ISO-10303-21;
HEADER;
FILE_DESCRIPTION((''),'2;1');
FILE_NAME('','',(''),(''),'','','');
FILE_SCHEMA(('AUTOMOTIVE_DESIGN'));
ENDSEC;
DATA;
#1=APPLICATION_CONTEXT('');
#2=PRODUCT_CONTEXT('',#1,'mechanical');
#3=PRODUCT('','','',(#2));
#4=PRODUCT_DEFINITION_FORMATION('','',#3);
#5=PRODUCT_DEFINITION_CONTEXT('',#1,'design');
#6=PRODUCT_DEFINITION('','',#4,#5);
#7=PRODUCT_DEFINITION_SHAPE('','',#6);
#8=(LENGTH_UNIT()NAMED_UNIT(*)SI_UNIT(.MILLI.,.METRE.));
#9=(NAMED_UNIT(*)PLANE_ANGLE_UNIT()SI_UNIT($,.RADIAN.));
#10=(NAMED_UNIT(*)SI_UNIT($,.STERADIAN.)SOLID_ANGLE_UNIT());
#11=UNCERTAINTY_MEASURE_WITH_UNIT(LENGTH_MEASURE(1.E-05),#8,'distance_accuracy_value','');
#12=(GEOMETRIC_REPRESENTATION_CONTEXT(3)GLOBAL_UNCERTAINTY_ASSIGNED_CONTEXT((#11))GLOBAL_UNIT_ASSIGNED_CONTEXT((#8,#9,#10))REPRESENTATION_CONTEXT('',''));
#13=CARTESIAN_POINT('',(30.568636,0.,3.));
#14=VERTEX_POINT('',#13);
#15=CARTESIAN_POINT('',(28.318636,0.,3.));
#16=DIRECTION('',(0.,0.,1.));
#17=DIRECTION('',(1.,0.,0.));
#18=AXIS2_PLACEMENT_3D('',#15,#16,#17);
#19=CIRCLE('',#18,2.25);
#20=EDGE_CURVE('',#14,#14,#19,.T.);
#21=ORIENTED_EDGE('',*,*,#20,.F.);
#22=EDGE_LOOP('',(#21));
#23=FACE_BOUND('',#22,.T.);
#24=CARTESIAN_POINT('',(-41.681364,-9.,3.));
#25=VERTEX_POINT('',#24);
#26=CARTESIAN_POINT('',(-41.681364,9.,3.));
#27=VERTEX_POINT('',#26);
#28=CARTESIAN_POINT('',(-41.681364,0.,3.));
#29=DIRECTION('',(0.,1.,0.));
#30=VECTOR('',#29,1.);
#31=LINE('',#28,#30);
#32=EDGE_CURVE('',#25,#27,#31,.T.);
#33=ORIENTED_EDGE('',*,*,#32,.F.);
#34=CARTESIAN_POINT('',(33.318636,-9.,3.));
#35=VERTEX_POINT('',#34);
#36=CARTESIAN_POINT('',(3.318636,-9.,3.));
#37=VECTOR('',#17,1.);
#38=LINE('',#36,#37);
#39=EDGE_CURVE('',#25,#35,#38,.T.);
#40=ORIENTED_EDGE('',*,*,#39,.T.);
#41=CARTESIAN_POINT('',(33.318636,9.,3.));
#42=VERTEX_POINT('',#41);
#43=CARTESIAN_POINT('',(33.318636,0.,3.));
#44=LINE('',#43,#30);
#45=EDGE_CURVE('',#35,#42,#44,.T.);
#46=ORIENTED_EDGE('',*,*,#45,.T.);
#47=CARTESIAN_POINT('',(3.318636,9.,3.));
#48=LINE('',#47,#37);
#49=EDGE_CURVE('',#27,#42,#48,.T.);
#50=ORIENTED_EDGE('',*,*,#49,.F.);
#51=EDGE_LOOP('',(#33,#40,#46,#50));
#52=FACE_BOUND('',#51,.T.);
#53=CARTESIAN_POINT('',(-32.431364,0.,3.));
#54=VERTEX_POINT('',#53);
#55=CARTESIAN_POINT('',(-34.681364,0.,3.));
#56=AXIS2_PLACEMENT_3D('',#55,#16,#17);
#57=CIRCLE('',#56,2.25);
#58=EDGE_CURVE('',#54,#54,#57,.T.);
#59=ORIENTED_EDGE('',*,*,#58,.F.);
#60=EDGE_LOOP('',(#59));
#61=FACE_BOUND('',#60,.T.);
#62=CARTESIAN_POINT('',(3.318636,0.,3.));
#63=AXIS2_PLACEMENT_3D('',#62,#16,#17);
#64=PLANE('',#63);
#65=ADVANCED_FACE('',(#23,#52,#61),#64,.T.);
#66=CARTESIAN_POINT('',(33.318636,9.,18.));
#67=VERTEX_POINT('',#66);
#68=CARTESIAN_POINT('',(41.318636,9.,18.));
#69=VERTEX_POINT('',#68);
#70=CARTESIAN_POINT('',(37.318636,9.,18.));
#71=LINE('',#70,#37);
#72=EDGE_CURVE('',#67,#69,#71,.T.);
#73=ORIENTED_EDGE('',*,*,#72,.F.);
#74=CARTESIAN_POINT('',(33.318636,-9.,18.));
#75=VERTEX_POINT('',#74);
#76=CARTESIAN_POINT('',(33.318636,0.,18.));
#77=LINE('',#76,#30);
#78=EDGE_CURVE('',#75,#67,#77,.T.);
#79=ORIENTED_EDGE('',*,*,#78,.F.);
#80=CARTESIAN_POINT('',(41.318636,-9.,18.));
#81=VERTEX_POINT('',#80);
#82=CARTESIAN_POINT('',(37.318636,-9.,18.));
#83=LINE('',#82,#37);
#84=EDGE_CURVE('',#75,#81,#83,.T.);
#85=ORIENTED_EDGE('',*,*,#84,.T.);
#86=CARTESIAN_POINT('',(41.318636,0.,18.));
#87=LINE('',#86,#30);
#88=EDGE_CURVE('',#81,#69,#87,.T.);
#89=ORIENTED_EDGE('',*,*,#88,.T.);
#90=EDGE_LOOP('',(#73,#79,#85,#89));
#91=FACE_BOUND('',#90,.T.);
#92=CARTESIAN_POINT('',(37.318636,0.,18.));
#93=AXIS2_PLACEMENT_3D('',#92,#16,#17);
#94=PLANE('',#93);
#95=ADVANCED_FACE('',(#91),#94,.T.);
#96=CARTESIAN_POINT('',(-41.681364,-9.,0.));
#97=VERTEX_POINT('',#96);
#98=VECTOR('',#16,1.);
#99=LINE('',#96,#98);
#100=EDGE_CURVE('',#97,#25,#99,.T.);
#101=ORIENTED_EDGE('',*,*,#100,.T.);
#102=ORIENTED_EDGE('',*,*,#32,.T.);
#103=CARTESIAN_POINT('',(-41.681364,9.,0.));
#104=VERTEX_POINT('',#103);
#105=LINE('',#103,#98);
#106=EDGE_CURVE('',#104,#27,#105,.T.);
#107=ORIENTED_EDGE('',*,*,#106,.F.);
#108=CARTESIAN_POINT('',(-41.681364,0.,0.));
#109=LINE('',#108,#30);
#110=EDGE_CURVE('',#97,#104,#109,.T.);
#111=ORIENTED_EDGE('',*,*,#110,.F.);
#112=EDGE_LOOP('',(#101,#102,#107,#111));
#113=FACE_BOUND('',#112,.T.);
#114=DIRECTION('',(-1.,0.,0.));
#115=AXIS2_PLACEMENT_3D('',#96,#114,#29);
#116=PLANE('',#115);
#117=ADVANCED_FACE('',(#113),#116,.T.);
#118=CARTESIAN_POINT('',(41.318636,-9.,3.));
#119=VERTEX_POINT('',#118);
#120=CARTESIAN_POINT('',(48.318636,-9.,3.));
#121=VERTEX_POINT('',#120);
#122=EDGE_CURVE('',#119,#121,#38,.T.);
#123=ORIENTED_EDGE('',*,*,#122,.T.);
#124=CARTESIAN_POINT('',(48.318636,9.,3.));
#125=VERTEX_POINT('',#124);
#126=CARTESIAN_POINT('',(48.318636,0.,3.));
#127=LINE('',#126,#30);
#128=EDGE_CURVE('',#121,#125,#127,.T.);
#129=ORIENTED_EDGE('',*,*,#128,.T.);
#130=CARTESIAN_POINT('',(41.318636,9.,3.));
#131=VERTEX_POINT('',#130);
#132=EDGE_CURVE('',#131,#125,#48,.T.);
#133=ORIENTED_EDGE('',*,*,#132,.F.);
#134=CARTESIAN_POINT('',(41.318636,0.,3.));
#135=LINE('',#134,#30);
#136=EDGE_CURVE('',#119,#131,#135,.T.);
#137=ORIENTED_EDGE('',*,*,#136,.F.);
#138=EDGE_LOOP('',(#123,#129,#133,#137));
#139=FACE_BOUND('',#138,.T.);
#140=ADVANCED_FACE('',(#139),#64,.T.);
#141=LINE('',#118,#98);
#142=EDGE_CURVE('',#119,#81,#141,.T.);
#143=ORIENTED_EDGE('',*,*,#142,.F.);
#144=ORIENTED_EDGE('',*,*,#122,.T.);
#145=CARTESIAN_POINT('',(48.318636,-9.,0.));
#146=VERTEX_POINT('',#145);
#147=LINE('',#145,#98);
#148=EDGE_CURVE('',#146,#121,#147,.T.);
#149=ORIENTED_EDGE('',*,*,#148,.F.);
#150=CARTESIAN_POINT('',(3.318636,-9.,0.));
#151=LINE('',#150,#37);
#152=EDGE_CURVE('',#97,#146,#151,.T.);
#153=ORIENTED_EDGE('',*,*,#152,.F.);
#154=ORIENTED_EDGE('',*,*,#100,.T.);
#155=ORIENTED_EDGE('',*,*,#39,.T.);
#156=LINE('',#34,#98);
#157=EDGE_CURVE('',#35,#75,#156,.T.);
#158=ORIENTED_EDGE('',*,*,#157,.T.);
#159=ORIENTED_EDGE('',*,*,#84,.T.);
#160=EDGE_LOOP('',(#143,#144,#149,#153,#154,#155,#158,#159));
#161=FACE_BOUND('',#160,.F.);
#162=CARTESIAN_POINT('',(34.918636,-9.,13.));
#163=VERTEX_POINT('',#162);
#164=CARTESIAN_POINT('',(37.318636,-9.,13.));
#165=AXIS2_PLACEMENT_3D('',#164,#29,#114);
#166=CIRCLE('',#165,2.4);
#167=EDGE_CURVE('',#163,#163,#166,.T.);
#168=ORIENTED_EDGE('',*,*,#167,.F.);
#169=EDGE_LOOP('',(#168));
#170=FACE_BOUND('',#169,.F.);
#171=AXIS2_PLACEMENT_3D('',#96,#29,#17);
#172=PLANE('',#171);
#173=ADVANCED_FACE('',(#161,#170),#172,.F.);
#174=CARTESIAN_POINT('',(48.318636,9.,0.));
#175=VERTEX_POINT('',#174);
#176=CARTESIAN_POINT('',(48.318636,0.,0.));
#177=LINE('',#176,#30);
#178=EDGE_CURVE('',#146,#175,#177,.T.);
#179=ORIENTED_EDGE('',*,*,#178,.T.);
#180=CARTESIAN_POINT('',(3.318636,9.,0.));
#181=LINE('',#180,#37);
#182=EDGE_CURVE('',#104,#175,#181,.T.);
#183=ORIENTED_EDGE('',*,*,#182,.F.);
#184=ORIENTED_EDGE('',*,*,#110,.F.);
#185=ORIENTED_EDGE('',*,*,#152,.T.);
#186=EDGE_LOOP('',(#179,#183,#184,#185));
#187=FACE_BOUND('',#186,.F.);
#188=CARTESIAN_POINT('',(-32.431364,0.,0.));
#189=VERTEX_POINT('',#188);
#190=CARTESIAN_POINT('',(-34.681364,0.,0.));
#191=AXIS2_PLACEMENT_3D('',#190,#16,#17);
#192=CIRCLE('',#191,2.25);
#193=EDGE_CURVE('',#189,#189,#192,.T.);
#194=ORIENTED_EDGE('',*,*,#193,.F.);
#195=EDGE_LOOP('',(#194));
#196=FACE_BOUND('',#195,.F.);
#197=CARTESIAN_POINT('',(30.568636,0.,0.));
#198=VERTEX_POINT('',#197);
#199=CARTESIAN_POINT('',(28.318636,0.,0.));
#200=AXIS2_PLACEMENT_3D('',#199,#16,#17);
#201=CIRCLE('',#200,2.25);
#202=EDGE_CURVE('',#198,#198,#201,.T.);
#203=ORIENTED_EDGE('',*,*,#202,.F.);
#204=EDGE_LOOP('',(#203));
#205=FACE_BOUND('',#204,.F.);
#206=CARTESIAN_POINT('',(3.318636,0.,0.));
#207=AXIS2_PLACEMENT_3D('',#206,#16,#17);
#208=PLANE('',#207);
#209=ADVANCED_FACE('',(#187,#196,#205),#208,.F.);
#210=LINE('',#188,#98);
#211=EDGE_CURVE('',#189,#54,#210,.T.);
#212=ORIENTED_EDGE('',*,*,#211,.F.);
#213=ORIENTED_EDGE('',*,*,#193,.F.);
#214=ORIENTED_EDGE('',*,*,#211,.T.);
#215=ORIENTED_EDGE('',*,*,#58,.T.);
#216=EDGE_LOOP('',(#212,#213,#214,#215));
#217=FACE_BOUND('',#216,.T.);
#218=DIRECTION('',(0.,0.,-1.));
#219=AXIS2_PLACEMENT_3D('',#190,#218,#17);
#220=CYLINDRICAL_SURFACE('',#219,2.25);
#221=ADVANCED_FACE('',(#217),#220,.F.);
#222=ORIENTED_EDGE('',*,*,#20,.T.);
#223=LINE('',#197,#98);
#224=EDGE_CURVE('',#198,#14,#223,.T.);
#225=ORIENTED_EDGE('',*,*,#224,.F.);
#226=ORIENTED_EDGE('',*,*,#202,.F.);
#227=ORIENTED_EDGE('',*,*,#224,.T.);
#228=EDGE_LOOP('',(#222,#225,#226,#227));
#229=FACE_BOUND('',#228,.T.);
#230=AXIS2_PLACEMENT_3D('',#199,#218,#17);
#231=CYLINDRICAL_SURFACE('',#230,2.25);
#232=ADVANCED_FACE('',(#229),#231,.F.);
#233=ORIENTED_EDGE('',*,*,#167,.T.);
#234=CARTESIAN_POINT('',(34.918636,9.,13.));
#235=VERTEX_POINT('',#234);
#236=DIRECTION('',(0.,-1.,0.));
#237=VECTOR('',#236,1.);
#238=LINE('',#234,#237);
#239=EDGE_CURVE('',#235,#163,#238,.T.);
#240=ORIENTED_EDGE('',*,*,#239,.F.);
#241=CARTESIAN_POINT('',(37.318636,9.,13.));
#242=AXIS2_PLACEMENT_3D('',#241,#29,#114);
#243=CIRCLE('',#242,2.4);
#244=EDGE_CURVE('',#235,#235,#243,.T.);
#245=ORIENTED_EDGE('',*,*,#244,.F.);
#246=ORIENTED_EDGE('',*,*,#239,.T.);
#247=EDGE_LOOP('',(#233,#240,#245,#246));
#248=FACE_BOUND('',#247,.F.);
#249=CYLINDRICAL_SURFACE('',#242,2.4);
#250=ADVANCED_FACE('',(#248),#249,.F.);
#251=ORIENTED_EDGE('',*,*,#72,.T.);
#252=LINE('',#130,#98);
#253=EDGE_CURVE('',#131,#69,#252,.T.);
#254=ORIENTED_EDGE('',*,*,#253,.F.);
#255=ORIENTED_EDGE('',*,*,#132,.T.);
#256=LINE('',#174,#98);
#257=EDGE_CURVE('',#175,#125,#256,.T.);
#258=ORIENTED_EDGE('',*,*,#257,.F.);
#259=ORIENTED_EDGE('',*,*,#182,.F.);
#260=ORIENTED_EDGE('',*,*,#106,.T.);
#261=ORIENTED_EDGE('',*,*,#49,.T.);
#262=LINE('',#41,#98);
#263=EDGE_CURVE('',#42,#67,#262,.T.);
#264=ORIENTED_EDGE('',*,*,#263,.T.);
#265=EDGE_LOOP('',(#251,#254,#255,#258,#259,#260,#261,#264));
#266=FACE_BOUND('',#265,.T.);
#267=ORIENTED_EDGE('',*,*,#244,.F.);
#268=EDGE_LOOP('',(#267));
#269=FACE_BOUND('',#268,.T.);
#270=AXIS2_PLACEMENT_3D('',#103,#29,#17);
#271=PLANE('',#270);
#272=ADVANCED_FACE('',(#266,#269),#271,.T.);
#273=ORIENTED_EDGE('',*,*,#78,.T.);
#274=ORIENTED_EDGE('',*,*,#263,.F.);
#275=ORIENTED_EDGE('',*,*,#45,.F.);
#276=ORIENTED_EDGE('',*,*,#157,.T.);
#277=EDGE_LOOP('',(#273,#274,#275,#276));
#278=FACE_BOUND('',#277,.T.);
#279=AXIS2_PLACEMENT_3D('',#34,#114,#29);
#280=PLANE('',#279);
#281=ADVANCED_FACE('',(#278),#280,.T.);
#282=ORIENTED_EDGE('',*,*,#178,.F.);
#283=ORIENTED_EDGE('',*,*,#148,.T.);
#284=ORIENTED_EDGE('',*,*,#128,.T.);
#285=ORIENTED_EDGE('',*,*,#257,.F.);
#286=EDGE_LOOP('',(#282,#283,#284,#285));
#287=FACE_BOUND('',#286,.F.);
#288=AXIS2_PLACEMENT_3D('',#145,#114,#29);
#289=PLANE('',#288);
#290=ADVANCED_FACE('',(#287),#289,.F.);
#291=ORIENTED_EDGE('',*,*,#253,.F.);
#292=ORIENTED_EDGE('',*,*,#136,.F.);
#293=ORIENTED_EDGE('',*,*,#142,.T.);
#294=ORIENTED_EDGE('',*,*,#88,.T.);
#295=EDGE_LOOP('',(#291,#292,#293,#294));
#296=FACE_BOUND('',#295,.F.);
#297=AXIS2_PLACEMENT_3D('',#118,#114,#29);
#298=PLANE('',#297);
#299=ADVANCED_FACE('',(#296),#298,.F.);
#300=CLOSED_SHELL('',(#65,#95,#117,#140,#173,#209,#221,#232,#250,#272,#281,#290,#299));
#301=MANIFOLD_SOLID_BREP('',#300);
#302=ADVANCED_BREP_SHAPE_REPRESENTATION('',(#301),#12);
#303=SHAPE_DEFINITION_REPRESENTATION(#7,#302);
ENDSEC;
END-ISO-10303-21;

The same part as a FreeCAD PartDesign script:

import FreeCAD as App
import Part
import Sketcher

V = App.Vector

doc = App.newDocument("Part")
body = doc.addObject("PartDesign::Body", "Body")

# Sketch on XY plane
sketch1 = body.newObject("Sketcher::SketchObject", "Sketch")
sketch1.AttachmentSupport = (doc.getObject("XY_Plane"), [""])
sketch1.MapMode = "FlatFace"
sketch1.addGeometry([
    Part.LineSegment(V(-41.7, 9, 0), V(-41.7, -9, 0)),  # 0
    Part.LineSegment(V(-41.7, -9, 0), V(48.3, -9, 0)),  # 1
    Part.LineSegment(V(48.3, -9, 0), V(48.3, 9, 0)),  # 2
    Part.LineSegment(V(48.3, 9, 0), V(-41.7, 9, 0)),  # 3
    Part.Circle(V(-34.7, 0, 0), V(0, 0, 1), 2.2),  # 4
    Part.Circle(V(28.3, 0, 0), V(0, 0, 1), 2.2),  # 5
], False)
sketch1.addConstraint([
    Sketcher.Constraint("Coincident", 0, 2, 1, 1),
    Sketcher.Constraint("Coincident", 1, 2, 2, 1),
    Sketcher.Constraint("Coincident", 2, 2, 3, 1),
    Sketcher.Constraint("Coincident", 3, 2, 0, 1),
    Sketcher.Constraint("Vertical", 0),
    Sketcher.Constraint("Horizontal", 1),
    Sketcher.Constraint("Vertical", 2),
    Sketcher.Constraint("Horizontal", 3),
    Sketcher.Constraint("Equal", 4, 5),
    Sketcher.Constraint("PointOnObject", 4, 3, -1),
    Sketcher.Constraint("PointOnObject", 5, 3, -1),
    Sketcher.Constraint("Diameter", 4, 4.5),
    Sketcher.Constraint("DistanceX", 1, 1, 1, 2, 90.0),
    Sketcher.Constraint("DistanceY", 0, 2, 0, 1, 18.0),
    Sketcher.Constraint("DistanceY", 0, 2, -1, 1, 9.0),
    Sketcher.Constraint("DistanceX", 4, 3, 5, 3, 63.0),
    Sketcher.Constraint("DistanceX", 0, 2, 4, 3, 7.0),
    Sketcher.Constraint("DistanceX", 4, 3, -1, 1, 34.681364),
])
pad1 = body.newObject("PartDesign::Pad", "Pad")
pad1.Profile = sketch1
pad1.Length = 3

# Sketch on XY plane
sketch2 = body.newObject("Sketcher::SketchObject", "Sketch001")
sketch2.AttachmentSupport = (doc.getObject("XY_Plane"), [""])
sketch2.MapMode = "FlatFace"
sketch2.AttachmentOffset = App.Placement(V(0, 0, 3), App.Rotation())
sketch2.addGeometry([
    Part.LineSegment(V(33, 9, 0), V(33, -9, 0)),
    Part.LineSegment(V(33, -9, 0), V(41, -9, 0)),
    Part.LineSegment(V(41, -9, 0), V(41, 9, 0)),
    Part.LineSegment(V(41, 9, 0), V(33, 9, 0)),
], False)
sketch2.addConstraint([
    Sketcher.Constraint("Coincident", 0, 2, 1, 1),
    Sketcher.Constraint("Coincident", 1, 2, 2, 1),
    Sketcher.Constraint("Coincident", 2, 2, 3, 1),
    Sketcher.Constraint("Coincident", 3, 2, 0, 1),
    Sketcher.Constraint("Vertical", 0),
    Sketcher.Constraint("Horizontal", 1),
    Sketcher.Constraint("Vertical", 2),
    Sketcher.Constraint("Horizontal", 3),
    Sketcher.Constraint("DistanceX", 1, 1, 1, 2, 8.0),
    Sketcher.Constraint("DistanceY", 0, 2, 0, 1, 18.0),
    Sketcher.Constraint("DistanceY", 0, 2, -1, 1, 9.0),
    Sketcher.Constraint("DistanceX", -1, 1, 0, 2, 33.318636),
])
pad2 = body.newObject("PartDesign::Pad", "Pad001")
pad2.Profile = sketch2
pad2.Length = 15

# Sketch on XZ plane
sketch3 = body.newObject("Sketcher::SketchObject", "Sketch002")
sketch3.AttachmentSupport = (doc.getObject("XZ_Plane"), [""])
sketch3.MapMode = "FlatFace"
sketch3.AttachmentOffset = App.Placement(V(0, 0, -9), App.Rotation())
sketch3.addGeometry(Part.Circle(V(37.3, 13, 0), V(0, 0, 1), 2.4), False)
sketch3.addConstraint([
    Sketcher.Constraint("Diameter", 0, 4.8),
    Sketcher.Constraint("DistanceY", -1, 1, 0, 3, 13.0),
    Sketcher.Constraint("DistanceX", -1, 1, 0, 3, 37.318636),
])
pocket1 = body.newObject("PartDesign::Pocket", "Pocket")
pocket1.Profile = sketch3
pocket1.Type = "ThroughAll"
pocket1.Reversed = True

doc.recompute()
